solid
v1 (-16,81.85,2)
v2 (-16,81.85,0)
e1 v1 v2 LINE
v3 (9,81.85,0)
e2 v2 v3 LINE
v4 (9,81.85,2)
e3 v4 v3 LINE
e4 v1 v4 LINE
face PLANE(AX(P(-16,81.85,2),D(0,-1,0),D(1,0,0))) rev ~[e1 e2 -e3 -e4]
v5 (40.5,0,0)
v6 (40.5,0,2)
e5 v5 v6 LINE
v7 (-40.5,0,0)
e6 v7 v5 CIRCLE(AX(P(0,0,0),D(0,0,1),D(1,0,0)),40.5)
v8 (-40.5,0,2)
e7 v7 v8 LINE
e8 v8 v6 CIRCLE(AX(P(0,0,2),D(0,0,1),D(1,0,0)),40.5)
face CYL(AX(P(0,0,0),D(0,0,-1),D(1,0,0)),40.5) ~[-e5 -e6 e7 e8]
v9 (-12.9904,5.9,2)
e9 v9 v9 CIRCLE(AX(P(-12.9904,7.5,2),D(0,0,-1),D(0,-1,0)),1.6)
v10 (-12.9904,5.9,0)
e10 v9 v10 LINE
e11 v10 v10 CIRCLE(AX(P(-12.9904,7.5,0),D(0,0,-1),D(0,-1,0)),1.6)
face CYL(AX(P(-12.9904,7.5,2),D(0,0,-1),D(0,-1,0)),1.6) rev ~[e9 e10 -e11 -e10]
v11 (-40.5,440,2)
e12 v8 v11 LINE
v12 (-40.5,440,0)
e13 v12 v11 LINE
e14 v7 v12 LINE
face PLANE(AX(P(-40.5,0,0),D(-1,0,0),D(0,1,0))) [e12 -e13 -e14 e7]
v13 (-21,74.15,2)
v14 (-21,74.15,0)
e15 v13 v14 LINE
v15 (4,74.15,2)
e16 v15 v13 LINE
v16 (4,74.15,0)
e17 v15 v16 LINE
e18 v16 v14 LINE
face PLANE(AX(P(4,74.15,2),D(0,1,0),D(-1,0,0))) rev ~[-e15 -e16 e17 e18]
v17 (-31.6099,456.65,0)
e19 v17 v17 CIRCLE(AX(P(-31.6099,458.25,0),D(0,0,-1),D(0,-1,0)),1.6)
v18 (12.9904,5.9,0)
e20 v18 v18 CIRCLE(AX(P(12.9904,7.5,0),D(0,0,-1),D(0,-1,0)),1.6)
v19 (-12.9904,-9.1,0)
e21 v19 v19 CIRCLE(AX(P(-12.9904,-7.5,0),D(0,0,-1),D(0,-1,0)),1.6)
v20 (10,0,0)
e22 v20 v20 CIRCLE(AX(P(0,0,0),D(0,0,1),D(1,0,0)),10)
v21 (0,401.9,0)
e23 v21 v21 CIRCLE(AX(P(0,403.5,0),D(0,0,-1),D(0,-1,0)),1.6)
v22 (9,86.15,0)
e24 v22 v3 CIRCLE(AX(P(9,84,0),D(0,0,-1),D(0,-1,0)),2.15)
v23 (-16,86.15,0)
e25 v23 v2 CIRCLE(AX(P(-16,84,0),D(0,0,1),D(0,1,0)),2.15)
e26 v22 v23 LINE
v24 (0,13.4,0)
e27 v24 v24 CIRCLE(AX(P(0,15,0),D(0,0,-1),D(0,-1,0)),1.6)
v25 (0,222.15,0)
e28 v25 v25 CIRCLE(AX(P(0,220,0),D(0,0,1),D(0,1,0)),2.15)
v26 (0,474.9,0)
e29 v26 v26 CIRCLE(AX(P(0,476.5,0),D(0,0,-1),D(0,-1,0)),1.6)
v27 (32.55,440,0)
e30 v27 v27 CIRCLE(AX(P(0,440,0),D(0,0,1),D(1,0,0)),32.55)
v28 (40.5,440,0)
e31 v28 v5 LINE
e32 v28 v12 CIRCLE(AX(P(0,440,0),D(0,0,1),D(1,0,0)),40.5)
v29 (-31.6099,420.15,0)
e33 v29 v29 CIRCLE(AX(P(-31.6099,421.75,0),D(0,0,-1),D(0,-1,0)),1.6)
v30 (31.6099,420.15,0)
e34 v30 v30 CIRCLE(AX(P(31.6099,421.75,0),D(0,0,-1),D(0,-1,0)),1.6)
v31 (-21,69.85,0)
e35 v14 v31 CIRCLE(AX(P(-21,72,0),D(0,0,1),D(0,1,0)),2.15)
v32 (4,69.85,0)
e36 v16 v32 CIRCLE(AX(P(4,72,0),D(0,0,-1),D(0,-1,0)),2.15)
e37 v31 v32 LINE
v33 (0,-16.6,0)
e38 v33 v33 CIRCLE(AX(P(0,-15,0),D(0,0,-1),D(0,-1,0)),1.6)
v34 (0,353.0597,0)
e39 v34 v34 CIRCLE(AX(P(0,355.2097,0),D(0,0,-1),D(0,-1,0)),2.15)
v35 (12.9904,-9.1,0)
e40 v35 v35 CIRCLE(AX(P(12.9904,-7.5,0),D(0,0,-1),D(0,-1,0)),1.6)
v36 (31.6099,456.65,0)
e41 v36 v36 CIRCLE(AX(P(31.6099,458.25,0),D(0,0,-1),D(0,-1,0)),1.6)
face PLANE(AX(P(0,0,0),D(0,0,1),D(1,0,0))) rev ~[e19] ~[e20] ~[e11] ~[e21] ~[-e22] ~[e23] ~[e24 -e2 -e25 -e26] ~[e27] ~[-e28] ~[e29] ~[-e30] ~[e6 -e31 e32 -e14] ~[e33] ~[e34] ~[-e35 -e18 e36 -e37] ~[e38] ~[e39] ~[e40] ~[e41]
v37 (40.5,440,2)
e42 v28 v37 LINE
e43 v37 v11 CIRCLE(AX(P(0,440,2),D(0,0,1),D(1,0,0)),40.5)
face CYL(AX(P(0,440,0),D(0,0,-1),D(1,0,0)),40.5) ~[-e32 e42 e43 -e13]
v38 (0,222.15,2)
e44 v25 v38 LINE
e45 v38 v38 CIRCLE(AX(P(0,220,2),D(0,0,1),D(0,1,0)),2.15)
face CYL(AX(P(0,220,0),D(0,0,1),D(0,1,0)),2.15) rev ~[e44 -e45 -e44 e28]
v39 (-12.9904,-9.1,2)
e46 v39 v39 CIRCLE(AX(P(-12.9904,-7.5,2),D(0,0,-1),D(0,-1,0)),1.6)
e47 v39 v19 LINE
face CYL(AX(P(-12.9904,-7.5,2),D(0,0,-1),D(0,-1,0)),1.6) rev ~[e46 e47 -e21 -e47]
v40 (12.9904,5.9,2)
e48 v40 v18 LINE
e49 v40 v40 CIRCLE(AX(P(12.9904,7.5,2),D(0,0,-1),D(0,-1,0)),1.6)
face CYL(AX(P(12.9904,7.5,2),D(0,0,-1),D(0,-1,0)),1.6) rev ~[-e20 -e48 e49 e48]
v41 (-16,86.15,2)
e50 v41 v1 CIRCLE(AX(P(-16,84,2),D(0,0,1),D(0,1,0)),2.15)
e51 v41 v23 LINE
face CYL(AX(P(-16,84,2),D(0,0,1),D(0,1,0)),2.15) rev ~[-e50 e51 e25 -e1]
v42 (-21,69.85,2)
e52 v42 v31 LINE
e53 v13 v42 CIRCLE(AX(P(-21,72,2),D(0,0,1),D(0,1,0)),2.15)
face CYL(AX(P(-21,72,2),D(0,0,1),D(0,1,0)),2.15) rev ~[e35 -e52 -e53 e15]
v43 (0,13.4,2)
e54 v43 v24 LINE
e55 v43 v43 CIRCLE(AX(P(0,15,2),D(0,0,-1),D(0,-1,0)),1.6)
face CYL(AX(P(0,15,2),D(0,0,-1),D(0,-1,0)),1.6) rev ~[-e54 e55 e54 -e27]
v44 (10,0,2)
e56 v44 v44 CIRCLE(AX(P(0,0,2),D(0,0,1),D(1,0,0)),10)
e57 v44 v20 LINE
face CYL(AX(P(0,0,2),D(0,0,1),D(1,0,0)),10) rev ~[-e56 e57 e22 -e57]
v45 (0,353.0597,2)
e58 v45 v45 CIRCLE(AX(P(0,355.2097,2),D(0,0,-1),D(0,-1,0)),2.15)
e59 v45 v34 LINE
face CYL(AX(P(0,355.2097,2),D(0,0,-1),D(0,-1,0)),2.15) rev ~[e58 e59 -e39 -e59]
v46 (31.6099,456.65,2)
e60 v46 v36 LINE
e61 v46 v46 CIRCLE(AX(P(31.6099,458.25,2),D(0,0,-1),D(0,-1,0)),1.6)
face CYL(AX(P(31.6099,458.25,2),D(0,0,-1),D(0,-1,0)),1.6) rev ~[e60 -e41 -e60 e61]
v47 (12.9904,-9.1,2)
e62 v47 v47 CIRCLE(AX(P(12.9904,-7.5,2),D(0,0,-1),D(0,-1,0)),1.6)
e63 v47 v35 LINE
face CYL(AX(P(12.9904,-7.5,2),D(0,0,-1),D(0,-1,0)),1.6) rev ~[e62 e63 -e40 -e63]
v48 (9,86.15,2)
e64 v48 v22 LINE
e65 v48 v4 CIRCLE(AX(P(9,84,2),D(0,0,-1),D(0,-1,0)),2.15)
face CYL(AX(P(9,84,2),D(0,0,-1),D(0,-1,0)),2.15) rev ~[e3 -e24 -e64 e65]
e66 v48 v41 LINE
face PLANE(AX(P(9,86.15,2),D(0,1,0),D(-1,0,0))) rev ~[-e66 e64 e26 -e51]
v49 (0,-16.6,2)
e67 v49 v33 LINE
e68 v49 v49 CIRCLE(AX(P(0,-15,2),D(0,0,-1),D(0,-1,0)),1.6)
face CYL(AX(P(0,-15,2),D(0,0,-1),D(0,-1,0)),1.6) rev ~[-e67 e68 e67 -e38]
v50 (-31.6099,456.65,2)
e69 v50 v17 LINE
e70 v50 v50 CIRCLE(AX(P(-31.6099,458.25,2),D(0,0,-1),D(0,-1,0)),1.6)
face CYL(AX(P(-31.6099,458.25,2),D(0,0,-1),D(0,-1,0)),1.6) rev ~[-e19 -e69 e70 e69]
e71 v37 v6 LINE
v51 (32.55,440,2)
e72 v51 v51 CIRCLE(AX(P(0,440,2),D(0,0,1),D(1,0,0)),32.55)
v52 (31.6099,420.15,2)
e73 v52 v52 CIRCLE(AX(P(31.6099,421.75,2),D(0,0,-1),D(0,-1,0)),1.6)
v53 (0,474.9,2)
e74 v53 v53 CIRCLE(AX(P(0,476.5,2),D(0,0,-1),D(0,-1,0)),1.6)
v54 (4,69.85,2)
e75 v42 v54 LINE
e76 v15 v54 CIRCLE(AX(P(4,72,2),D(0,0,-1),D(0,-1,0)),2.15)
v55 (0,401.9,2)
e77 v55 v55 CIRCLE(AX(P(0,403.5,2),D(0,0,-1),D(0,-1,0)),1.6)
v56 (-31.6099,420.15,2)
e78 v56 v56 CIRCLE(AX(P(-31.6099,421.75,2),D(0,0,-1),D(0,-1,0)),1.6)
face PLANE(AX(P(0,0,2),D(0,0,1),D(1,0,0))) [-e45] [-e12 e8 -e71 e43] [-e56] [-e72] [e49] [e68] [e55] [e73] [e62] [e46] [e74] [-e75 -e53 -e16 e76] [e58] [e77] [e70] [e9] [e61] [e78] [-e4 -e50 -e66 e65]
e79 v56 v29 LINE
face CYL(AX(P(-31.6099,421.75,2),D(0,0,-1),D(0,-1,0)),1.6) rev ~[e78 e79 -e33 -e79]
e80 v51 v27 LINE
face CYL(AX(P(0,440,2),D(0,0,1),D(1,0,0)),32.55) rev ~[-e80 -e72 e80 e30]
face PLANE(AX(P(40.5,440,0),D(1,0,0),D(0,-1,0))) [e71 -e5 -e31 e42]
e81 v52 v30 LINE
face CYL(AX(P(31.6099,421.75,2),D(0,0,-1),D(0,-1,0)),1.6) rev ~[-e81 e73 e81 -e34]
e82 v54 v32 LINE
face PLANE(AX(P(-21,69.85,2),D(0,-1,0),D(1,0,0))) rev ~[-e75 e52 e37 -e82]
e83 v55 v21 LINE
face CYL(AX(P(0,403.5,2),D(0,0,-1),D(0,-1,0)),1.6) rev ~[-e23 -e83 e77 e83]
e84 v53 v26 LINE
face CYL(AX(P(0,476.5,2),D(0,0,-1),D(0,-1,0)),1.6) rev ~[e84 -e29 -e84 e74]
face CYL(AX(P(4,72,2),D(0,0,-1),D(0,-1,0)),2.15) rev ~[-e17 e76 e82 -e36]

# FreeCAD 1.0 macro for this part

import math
import FreeCAD as App
import Part
import Sketcher

V = App.Vector

doc = App.newDocument("Part")
body = doc.addObject("PartDesign::Body", "Body")

sketch1 = body.newObject("Sketcher::SketchObject", "Sketch")
sketch1.AttachmentSupport = (doc.getObject("XY_Plane"), [""])
sketch1.MapMode = "FlatFace"
sketch1.addGeometry([
    Part.ArcOfCircle(Part.Circle(V(0, 0, 0), V(0, 0, 1), 40.5), math.radians(180), math.radians(360)),
    Part.LineSegment(V(40.5, 0, 0), V(40.5, 440, 0)),
    Part.ArcOfCircle(Part.Circle(V(0, 440, 0), V(0, 0, 1), 40.5), math.radians(0), math.radians(180)),
    Part.LineSegment(V(-40.5, 440, 0), V(-40.5, 0, 0)),
], False)
sketch1.addConstraint([
    Sketcher.Constraint("Tangent", 0, 2, 1, 1),
    Sketcher.Constraint("Tangent", 1, 2, 2, 1),
    Sketcher.Constraint("Tangent", 2, 2, 3, 1),
    Sketcher.Constraint("Tangent", 3, 2, 0, 1),
    Sketcher.Constraint("Vertical", 1),
    Sketcher.Constraint("Vertical", 3),
    Sketcher.Constraint("Coincident", 0, 3, -1, 1),
    Sketcher.Constraint("Radius", 0, 40.5),
    Sketcher.Constraint("DistanceY", 1, 1, 1, 2, 440.0),
])
pad1 = body.newObject("PartDesign::Pad", "Pad")
pad1.Profile = sketch1
pad1.Length = 2

sketch2 = body.newObject("Sketcher::SketchObject", "Sketch001")
sketch2.AttachmentSupport = (doc.getObject("XY_Plane"), [""])
sketch2.MapMode = "FlatFace"
sketch2.AttachmentOffset = App.Placement(V(0, 0, 2), App.Rotation())
sketch2.addGeometry(Part.Circle(V(0, 440, 0), V(0, 0, 1), 32.55), False)
sketch2.addConstraint([
    Sketcher.Constraint("PointOnObject", 0, 3, -2),
    Sketcher.Constraint("Diameter", 0, 65.1),
    Sketcher.Constraint("DistanceY", -1, 1, 0, 3, 440.0),
])
pocket1 = body.newObject("PartDesign::Pocket", "Pocket")
pocket1.Profile = sketch2
pocket1.Length = 10

sketch3 = body.newObject("Sketcher::SketchObject", "Sketch002")
sketch3.AttachmentSupport = (doc.getObject("XY_Plane"), [""])
sketch3.MapMode = "FlatFace"
sketch3.AttachmentOffset = App.Placement(V(0, 0, 2), App.Rotation())
sketch3.addGeometry([
    Part.Circle(V(0, 476.5, 0), V(0, 0, 1), 1.6),
    Part.Circle(V(-31.6099, 458.25, 0), V(0, 0, 1), 1.6),
    Part.Circle(V(-31.6099, 421.75, 0), V(0, 0, 1), 1.6),
    Part.Circle(V(0, 403.5, 0), V(0, 0, 1), 1.6),
    Part.Circle(V(31.6099, 421.75, 0), V(0, 0, 1), 1.6),
    Part.Circle(V(31.6099, 458.25, 0), V(0, 0, 1), 1.6),
], False)
sketch3.addConstraint([
    Sketcher.Constraint("Equal", 0, 1),
    Sketcher.Constraint("Equal", 1, 2),
    Sketcher.Constraint("Equal", 2, 3),
    Sketcher.Constraint("Equal", 3, 4),
    Sketcher.Constraint("Equal", 4, 5),
    Sketcher.Constraint("Symmetric", 2, 3, 4, 3, -2),
    Sketcher.Constraint("Symmetric", 1, 3, 5, 3, -2),
    Sketcher.Constraint("PointOnObject", 0, 3, -2),
    Sketcher.Constraint("PointOnObject", 3, 3, -2),
    Sketcher.Constraint("Vertical", 1, 3, 2, 3),
    Sketcher.Constraint("Diameter", 0, 3.2),
    Sketcher.Constraint("DistanceY", 3, 3, 0, 3, 73.0),
    Sketcher.Constraint("DistanceY", -1, 1, 0, 3, 476.5),
    Sketcher.Constraint("DistanceY", 2, 3, 1, 3, 36.5),
    Sketcher.Constraint("DistanceX", 1, 3, -1, 1, 31.61),
    Sketcher.Constraint("DistanceY", -1, 1, 1, 3, 458.25),
])
doc.recompute()
hole = body.newObject("PartDesign::Hole", "Hole")
hole.Profile = sketch3
hole.ThreadType = "None"
hole.Diameter = 3.2
hole.DepthType = "ThroughAll"

sketch4 = body.newObject("Sketcher::SketchObject", "Sketch003")
sketch4.AttachmentSupport = (doc.getObject("XY_Plane"), [""])
sketch4.MapMode = "FlatFace"
sketch4.AttachmentOffset = App.Placement(V(0, 0, 2), App.Rotation())
sketch4.addGeometry([
    Part.Circle(V(4, 72, 0), V(0, 0, 1), 2.15),
    Part.Circle(V(0, 355.2097, 0), V(0, 0, 1), 2.15),
], False)
sketch4.addConstraint([
    Sketcher.Constraint("Equal", 0, 1),
    Sketcher.Constraint("PointOnObject", 1, 3, -2),
    Sketcher.Constraint("Diameter", 0, 4.3),
    Sketcher.Constraint("DistanceX", -1, 1, 0, 3, 4.0),
    Sketcher.Constraint("DistanceY", -1, 1, 0, 3, 72.0),
    Sketcher.Constraint("DistanceY", -1, 1, 1, 3, 355.2097),
])
doc.recompute()
hole2 = body.newObject("PartDesign::Hole", "Hole001")
hole2.Profile = sketch4
hole2.ThreadType = "None"
hole2.Diameter = 4.3
hole2.DepthType = "ThroughAll"

sketch5 = body.newObject("Sketcher::SketchObject", "Sketch004")
sketch5.AttachmentSupport = (doc.getObject("XY_Plane"), [""])
sketch5.MapMode = "FlatFace"
sketch5.AttachmentOffset = App.Placement(V(0, 0, 2), App.Rotation())
sketch5.addGeometry(Part.Circle(V(9, 84, 0), V(0, 0, 1), 2.15), False)
sketch5.addConstraint([
    Sketcher.Constraint("Diameter", 0, 4.3),
    Sketcher.Constraint("DistanceX", -1, 1, 0, 3, 9.0),
    Sketcher.Constraint("DistanceY", -1, 1, 0, 3, 84.0),
])
doc.recompute()
hole3 = body.newObject("PartDesign::Hole", "Hole002")
hole3.Profile = sketch5
hole3.ThreadType = "None"
hole3.Diameter = 4.3
hole3.DepthType = "ThroughAll"

sketch6 = body.newObject("Sketcher::SketchObject", "Sketch005")
sketch6.AttachmentSupport = (doc.getObject("XY_Plane"), [""])
sketch6.MapMode = "FlatFace"
sketch6.AttachmentOffset = App.Placement(V(0, 0, 2), App.Rotation())
sketch6.addGeometry([
    Part.Circle(V(0, 15, 0), V(0, 0, 1), 1.6),
    Part.Circle(V(-12.9904, 7.5, 0), V(0, 0, 1), 1.6),
    Part.Circle(V(-12.9904, -7.5, 0), V(0, 0, 1), 1.6),
    Part.Circle(V(0, -15, 0), V(0, 0, 1), 1.6),
    Part.Circle(V(12.9904, -7.5, 0), V(0, 0, 1), 1.6),
    Part.Circle(V(12.9904, 7.5, 0), V(0, 0, 1), 1.6),
], False)
sketch6.addConstraint([
    Sketcher.Constraint("Equal", 0, 1),
    Sketcher.Constraint("Equal", 1, 2),
    Sketcher.Constraint("Equal", 2, 3),
    Sketcher.Constraint("Equal", 3, 4),
    Sketcher.Constraint("Equal", 4, 5),
    Sketcher.Constraint("Symmetric", 0, 3, 3, 3, -1, 1),
    Sketcher.Constraint("Symmetric", 1, 3, 4, 3, -1, 1),
    Sketcher.Constraint("Symmetric", 2, 3, 5, 3, -1, 1),
    Sketcher.Constraint("Symmetric", 2, 3, 4, 3, -2),
    Sketcher.Constraint("PointOnObject", 0, 3, -2),
    Sketcher.Constraint("Diameter", 0, 3.2),
    Sketcher.Constraint("DistanceY", -1, 1, 0, 3, 15.0),
    Sketcher.Constraint("DistanceY", 2, 3, 1, 3, 15.0),
    Sketcher.Constraint("DistanceX", 1, 3, -1, 1, 12.9904),
])
doc.recompute()
hole4 = body.newObject("PartDesign::Hole", "Hole003")
hole4.Profile = sketch6
hole4.ThreadType = "None"
hole4.Diameter = 3.2
hole4.DepthType = "ThroughAll"

sketch7 = body.newObject("Sketcher::SketchObject", "Sketch006")
sketch7.AttachmentSupport = (doc.getObject("XY_Plane"), [""])
sketch7.MapMode = "FlatFace"
sketch7.AttachmentOffset = App.Placement(V(0, 0, 2), App.Rotation())
sketch7.addGeometry(Part.Circle(V(0, 0, 0), V(0, 0, 1), 10), False)
sketch7.addConstraint([
    Sketcher.Constraint("Coincident", 0, 3, -1, 1),
    Sketcher.Constraint("Diameter", 0, 20.0),
])
pocket2 = body.newObject("PartDesign::Pocket", "Pocket001")
pocket2.Profile = sketch7
pocket2.Length = 10

sketch8 = body.newObject("Sketcher::SketchObject", "Sketch007")
sketch8.AttachmentSupport = (doc.getObject("XY_Plane"), [""])
sketch8.MapMode = "FlatFace"
sketch8.AttachmentOffset = App.Placement(V(0, 0, 2), App.Rotation())
sketch8.addGeometry([
    Part.ArcOfCircle(Part.Circle(V(-16, 84, 0), V(0, 0, 1), 2.15), math.radians(90), math.radians(270)),
    Part.LineSegment(V(-16, 81.85, 0), V(9, 81.85, 0)),
    Part.ArcOfCircle(Part.Circle(V(9, 84, 0), V(0, 0, 1), 2.15), math.radians(-90), math.radians(90)),
    Part.LineSegment(V(9, 86.15, 0), V(-16, 86.15, 0)),
], False)
sketch8.addConstraint([
    Sketcher.Constraint("Tangent", 0, 2, 1, 1),
    Sketcher.Constraint("Tangent", 1, 2, 2, 1),
    Sketcher.Constraint("Tangent", 2, 2, 3, 1),
    Sketcher.Constraint("Tangent", 3, 2, 0, 1),
    Sketcher.Constraint("Horizontal", 1),
    Sketcher.Constraint("Horizontal", 3),
    Sketcher.Constraint("DistanceX", 1, 1, 1, 2, 25.0),
    Sketcher.Constraint("Radius", 0, 2.15),
    Sketcher.Constraint("DistanceX", 0, 3, -1, 1, 16.0),
    Sketcher.Constraint("DistanceY", -1, 1, 0, 3, 84.0),
])
pocket3 = body.newObject("PartDesign::Pocket", "Pocket002")
pocket3.Profile = sketch8
pocket3.Length = 10

sketch9 = body.newObject("Sketcher::SketchObject", "Sketch008")
sketch9.AttachmentSupport = (doc.getObject("XY_Plane"), [""])
sketch9.MapMode = "FlatFace"
sketch9.addGeometry(Part.Circle(V(0, 220, 0), V(0, 0, 1), 2.15), False)
sketch9.addConstraint([
    Sketcher.Constraint("PointOnObject", 0, 3, -2),
    Sketcher.Constraint("Diameter", 0, 4.3),
    Sketcher.Constraint("DistanceY", -1, 1, 0, 3, 220.0),
])
doc.recompute()
hole5 = body.newObject("PartDesign::Hole", "Hole004")
hole5.Profile = sketch9
hole5.ThreadType = "None"
hole5.Diameter = 4.3
hole5.DepthType = "ThroughAll"
hole5.Reversed = True

sketch10 = body.newObject("Sketcher::SketchObject", "Sketch009")
sketch10.AttachmentSupport = (doc.getObject("XY_Plane"), [""])
sketch10.MapMode = "FlatFace"
sketch10.AttachmentOffset = App.Placement(V(0, 0, 2), App.Rotation())
sketch10.addGeometry([
    Part.ArcOfCircle(Part.Circle(V(-21, 72, 0), V(0, 0, 1), 2.15), math.radians(90), math.radians(270)),
    Part.LineSegment(V(-21, 69.85, 0), V(4, 69.85, 0)),
    Part.ArcOfCircle(Part.Circle(V(4, 72, 0), V(0, 0, 1), 2.15), math.radians(-90), math.radians(90)),
    Part.LineSegment(V(4, 74.15, 0), V(-21, 74.15, 0)),
], False)
sketch10.addConstraint([
    Sketcher.Constraint("Tangent", 0, 2, 1, 1),
    Sketcher.Constraint("Tangent", 1, 2, 2, 1),
    Sketcher.Constraint("Tangent", 2, 2, 3, 1),
    Sketcher.Constraint("Tangent", 3, 2, 0, 1),
    Sketcher.Constraint("Horizontal", 1),
    Sketcher.Constraint("Horizontal", 3),
    Sketcher.Constraint("DistanceX", 0, 3, -1, 1, 21.0),
    Sketcher.Constraint("DistanceX", 1, 1, 1, 2, 25.0),
    Sketcher.Constraint("Radius", 0, 2.15),
    Sketcher.Constraint("DistanceY", -1, 1, 0, 3, 72.0),
])
pocket4 = body.newObject("PartDesign::Pocket", "Pocket003")
pocket4.Profile = sketch10
pocket4.Length = 10

doc.recompute()
